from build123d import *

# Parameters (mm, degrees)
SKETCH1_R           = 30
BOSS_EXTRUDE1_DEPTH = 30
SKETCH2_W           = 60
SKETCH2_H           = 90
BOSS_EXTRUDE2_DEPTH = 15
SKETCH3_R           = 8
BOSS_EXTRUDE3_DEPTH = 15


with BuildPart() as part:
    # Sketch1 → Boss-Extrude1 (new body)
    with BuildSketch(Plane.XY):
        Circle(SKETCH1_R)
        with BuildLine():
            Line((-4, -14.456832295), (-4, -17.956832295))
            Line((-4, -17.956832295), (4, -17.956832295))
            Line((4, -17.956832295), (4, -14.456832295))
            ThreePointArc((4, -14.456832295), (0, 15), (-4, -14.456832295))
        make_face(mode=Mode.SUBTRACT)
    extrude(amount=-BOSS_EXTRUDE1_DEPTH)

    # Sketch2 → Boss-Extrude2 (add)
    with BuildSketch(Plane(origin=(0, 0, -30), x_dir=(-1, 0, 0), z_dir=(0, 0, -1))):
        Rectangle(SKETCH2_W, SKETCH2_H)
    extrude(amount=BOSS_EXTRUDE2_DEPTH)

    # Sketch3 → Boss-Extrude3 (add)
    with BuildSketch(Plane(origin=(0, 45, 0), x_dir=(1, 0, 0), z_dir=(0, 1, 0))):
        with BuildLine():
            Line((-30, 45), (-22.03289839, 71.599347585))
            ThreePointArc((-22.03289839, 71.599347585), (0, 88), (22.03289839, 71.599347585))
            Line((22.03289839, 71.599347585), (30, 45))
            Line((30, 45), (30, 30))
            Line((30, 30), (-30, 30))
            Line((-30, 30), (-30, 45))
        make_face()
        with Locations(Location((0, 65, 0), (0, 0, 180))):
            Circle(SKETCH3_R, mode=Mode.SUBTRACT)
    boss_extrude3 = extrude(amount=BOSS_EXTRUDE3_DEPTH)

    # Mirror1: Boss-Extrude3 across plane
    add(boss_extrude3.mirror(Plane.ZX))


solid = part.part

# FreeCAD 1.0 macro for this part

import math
import FreeCAD as App
import Part
import Sketcher
from FreeCAD import Vector
Q = App.Units.Quantity

doc = App.newDocument("Part")
params = doc.addObject("Spreadsheet::Sheet", "Params")
for row, (alias, value) in enumerate([
    ("sketch1_diameter", "60 mm"),
    ("sketch1_radius", "15 mm"),
    ("sketch1_width", "8 mm"),
    ("sketch1_height", "3.5 mm"),
    ("pad1_length", "30 mm"),
    ("sketch2_width", "60 mm"),
    ("sketch2_height", "90 mm"),
    ("pad2_length", "15 mm"),
    ("sketch3_diameter", "16 mm"),
    ("sketch3_radius", "23 mm"),
    ("sketch3_width", "60 mm"),
    ("sketch3_height", "15 mm"),
    ("pad3_length", "15 mm"),
], start=1):
    params.set(f"A{row}", alias)
    params.set(f"B{row}", "=" + value)
    params.setAlias(f"B{row}", alias)

body = doc.addObject("PartDesign::Body", "Body")

# Sketch on XY plane
sketch1 = doc.addObject("Sketcher::SketchObject", "Sketch")
body.addObject(sketch1)
sketch1.AttachmentSupport = (doc.XY_Plane, [""])
sketch1.MapMode = "FlatFace"
sketch1.addGeometry(Part.Circle(Vector(0, 0, 0), Vector(0, 0, 1), 30), False)
sketch1.addGeometry(Part.LineSegment(Vector(-4, -18, 0), Vector(-4, -14.5, 0)), False)
sketch1.addGeometry(Part.ArcOfCircle(Part.Circle(Vector(0, 0, 0), Vector(0, 0, 1), 15), math.radians(-75), math.radians(255)), False)
sketch1.addGeometry(Part.LineSegment(Vector(4, -14.5, 0), Vector(4, -18, 0)), False)
sketch1.addGeometry(Part.LineSegment(Vector(4, -18, 0), Vector(-4, -18, 0)), False)
sketch1.addConstraint(Sketcher.Constraint("Coincident", 1, 2, 2, 2))
sketch1.addConstraint(Sketcher.Constraint("Coincident", 2, 1, 3, 1))
sketch1.addConstraint(Sketcher.Constraint("Coincident", 3, 2, 4, 1))
sketch1.addConstraint(Sketcher.Constraint("Coincident", 4, 2, 1, 1))
sketch1.addConstraint(Sketcher.Constraint("Vertical", 1))
sketch1.addConstraint(Sketcher.Constraint("Vertical", 3))
sketch1.addConstraint(Sketcher.Constraint("Horizontal", 4))
sketch1.addConstraint(Sketcher.Constraint("Coincident", 0, 3, -1, 1))
sketch1.addConstraint(Sketcher.Constraint("Coincident", 2, 3, -1, 1))
sketch1.addConstraint(Sketcher.Constraint("Horizontal", 1, 2, 2, 1))
sketch1.addConstraint(Sketcher.Constraint("Diameter", 0, Q("60 mm")))
sketch1.addConstraint(Sketcher.Constraint("Radius", 2, Q("15 mm")))
sketch1.addConstraint(Sketcher.Constraint("DistanceX", 4, 2, 4, 1, Q("8 mm")))
sketch1.addConstraint(Sketcher.Constraint("DistanceY", 1, 1, 1, 2, Q("3.5 mm")))
sketch1.setExpression("Constraints[10]", "Params.sketch1_diameter")
sketch1.setExpression("Constraints[11]", "Params.sketch1_radius")
sketch1.setExpression("Constraints[12]", "Params.sketch1_width")
sketch1.setExpression("Constraints[13]", "Params.sketch1_height")
pad1 = doc.addObject("PartDesign::Pad", "Pad")
body.addObject(pad1)
pad1.Profile = sketch1
pad1.setExpression("Length", "Params.pad1_length")
pad1.Reversed = True

# Sketch on XY plane
sketch2 = doc.addObject("Sketcher::SketchObject", "Sketch001")
body.addObject(sketch2)
sketch2.AttachmentSupport = (doc.XY_Plane, [""])
sketch2.MapMode = "FlatFace"
sketch2.AttachmentOffset = App.Placement(Vector(0, 0, -30), App.Rotation())
sketch2.addGeometry(Part.LineSegment(Vector(30, 45, 0), Vector(30, -45, 0)), False)
sketch2.addGeometry(Part.LineSegment(Vector(30, -45, 0), Vector(-30, -45, 0)), False)
sketch2.addGeometry(Part.LineSegment(Vector(-30, -45, 0), Vector(-30, 45, 0)), False)
sketch2.addGeometry(Part.LineSegment(Vector(-30, 45, 0), Vector(30, 45, 0)), False)
sketch2.addConstraint(Sketcher.Constraint("Coincident", 0, 2, 1, 1))
sketch2.addConstraint(Sketcher.Constraint("Coincident", 1, 2, 2, 1))
sketch2.addConstraint(Sketcher.Constraint("Coincident", 2, 2, 3, 1))
sketch2.addConstraint(Sketcher.Constraint("Coincident", 3, 2, 0, 1))
sketch2.addConstraint(Sketcher.Constraint("Vertical", 0))
sketch2.addConstraint(Sketcher.Constraint("Horizontal", 1))
sketch2.addConstraint(Sketcher.Constraint("Vertical", 2))
sketch2.addConstraint(Sketcher.Constraint("Horizontal", 3))
sketch2.addConstraint(Sketcher.Constraint("Symmetric", 0, 2, 2, 2, -1, 1))
sketch2.addConstraint(Sketcher.Constraint("DistanceX", 1, 2, 1, 1, Q("60 mm")))
sketch2.addConstraint(Sketcher.Constraint("DistanceY", 0, 2, 0, 1, Q("90 mm")))
sketch2.setExpression("Constraints[9]", "Params.sketch2_width")
sketch2.setExpression("Constraints[10]", "Params.sketch2_height")
pad2 = doc.addObject("PartDesign::Pad", "Pad001")
body.addObject(pad2)
pad2.Profile = sketch2
pad2.setExpression("Length", "Params.pad2_length")
pad2.Reversed = True

# Sketch on XZ plane
sketch3 = doc.addObject("Sketcher::SketchObject", "Sketch002")
body.addObject(sketch3)
sketch3.AttachmentSupport = (doc.XZ_Plane, [""])
sketch3.MapMode = "FlatFace"
sketch3.AttachmentOffset = App.Placement(Vector(0, 0, -45), App.Rotation())
sketch3.addGeometry(Part.LineSegment(Vector(-22, -72, 0), Vector(-30, -45, 0)), False)
sketch3.addGeometry(Part.LineSegment(Vector(-30, -45, 0), Vector(-30, -30, 0)), False)
sketch3.addGeometry(Part.LineSegment(Vector(-30, -30, 0), Vector(30, -30, 0)), False)
sketch3.addGeometry(Part.LineSegment(Vector(30, -30, 0), Vector(30, -45, 0)), False)
sketch3.addGeometry(Part.LineSegment(Vector(30, -45, 0), Vector(22, -72, 0)), False)
sketch3.addGeometry(Part.ArcOfCircle(Part.Circle(Vector(0, -65, 0), Vector(0, 0, 1), 23), math.radians(-163), math.radians(-17)), False)
sketch3.addGeometry(Part.Circle(Vector(0, -65, 0), Vector(0, 0, 1), 8), False)
sketch3.addConstraint(Sketcher.Constraint("Coincident", 0, 2, 1, 1))
sketch3.addConstraint(Sketcher.Constraint("Coincident", 1, 2, 2, 1))
sketch3.addConstraint(Sketcher.Constraint("Coincident", 2, 2, 3, 1))
sketch3.addConstraint(Sketcher.Constraint("Coincident", 3, 2, 4, 1))
sketch3.addConstraint(Sketcher.Constraint("Tangent", 4, 2, 5, 2))
sketch3.addConstraint(Sketcher.Constraint("Tangent", 5, 1, 0, 1))
sketch3.addConstraint(Sketcher.Constraint("Vertical", 1))
sketch3.addConstraint(Sketcher.Constraint("Horizontal", 2))
sketch3.addConstraint(Sketcher.Constraint("Vertical", 3))
sketch3.addConstraint(Sketcher.Constraint("Coincident", 6, 3, 5, 3))
sketch3.addConstraint(Sketcher.Constraint("Symmetric", 0, 2, 3, 2, -2))
sketch3.addConstraint(Sketcher.Constraint("PointOnObject", 5, 3, -2))
sketch3.addConstraint(Sketcher.Constraint("Diameter", 6, Q("16 mm")))
sketch3.addConstraint(Sketcher.Constraint("Radius", 5, Q("23 mm")))
sketch3.addConstraint(Sketcher.Constraint("DistanceX", 2, 1, 2, 2, Q("60 mm")))
sketch3.addConstraint(Sketcher.Constraint("DistanceY", 1, 1, 1, 2, Q("15 mm")))
sketch3.addConstraint(Sketcher.Constraint("DistanceY", 5, 3, -1, 1, Q("65 mm")))
sketch3.addConstraint(Sketcher.Constraint("DistanceY", 0, 2, -1, 1, Q("45 mm")))
sketch3.setExpression("Constraints[12]", "Params.sketch3_diameter")
sketch3.setExpression("Constraints[13]", "Params.sketch3_radius")
sketch3.setExpression("Constraints[14]", "Params.sketch3_width")
sketch3.setExpression("Constraints[15]", "Params.sketch3_height")
pad3 = doc.addObject("PartDesign::Pad", "Pad002")
body.addObject(pad3)
pad3.Profile = sketch3
pad3.setExpression("Length", "Params.pad3_length")
pad3.Reversed = True
doc.recompute()

mirrored = doc.addObject("PartDesign::Mirrored", "Mirrored")
body.addObject(mirrored)
mirrored.Originals = [pad3]
mirrored.MirrorPlane = (doc.XZ_Plane, [""])
body.Tip = mirrored

doc.recompute()
